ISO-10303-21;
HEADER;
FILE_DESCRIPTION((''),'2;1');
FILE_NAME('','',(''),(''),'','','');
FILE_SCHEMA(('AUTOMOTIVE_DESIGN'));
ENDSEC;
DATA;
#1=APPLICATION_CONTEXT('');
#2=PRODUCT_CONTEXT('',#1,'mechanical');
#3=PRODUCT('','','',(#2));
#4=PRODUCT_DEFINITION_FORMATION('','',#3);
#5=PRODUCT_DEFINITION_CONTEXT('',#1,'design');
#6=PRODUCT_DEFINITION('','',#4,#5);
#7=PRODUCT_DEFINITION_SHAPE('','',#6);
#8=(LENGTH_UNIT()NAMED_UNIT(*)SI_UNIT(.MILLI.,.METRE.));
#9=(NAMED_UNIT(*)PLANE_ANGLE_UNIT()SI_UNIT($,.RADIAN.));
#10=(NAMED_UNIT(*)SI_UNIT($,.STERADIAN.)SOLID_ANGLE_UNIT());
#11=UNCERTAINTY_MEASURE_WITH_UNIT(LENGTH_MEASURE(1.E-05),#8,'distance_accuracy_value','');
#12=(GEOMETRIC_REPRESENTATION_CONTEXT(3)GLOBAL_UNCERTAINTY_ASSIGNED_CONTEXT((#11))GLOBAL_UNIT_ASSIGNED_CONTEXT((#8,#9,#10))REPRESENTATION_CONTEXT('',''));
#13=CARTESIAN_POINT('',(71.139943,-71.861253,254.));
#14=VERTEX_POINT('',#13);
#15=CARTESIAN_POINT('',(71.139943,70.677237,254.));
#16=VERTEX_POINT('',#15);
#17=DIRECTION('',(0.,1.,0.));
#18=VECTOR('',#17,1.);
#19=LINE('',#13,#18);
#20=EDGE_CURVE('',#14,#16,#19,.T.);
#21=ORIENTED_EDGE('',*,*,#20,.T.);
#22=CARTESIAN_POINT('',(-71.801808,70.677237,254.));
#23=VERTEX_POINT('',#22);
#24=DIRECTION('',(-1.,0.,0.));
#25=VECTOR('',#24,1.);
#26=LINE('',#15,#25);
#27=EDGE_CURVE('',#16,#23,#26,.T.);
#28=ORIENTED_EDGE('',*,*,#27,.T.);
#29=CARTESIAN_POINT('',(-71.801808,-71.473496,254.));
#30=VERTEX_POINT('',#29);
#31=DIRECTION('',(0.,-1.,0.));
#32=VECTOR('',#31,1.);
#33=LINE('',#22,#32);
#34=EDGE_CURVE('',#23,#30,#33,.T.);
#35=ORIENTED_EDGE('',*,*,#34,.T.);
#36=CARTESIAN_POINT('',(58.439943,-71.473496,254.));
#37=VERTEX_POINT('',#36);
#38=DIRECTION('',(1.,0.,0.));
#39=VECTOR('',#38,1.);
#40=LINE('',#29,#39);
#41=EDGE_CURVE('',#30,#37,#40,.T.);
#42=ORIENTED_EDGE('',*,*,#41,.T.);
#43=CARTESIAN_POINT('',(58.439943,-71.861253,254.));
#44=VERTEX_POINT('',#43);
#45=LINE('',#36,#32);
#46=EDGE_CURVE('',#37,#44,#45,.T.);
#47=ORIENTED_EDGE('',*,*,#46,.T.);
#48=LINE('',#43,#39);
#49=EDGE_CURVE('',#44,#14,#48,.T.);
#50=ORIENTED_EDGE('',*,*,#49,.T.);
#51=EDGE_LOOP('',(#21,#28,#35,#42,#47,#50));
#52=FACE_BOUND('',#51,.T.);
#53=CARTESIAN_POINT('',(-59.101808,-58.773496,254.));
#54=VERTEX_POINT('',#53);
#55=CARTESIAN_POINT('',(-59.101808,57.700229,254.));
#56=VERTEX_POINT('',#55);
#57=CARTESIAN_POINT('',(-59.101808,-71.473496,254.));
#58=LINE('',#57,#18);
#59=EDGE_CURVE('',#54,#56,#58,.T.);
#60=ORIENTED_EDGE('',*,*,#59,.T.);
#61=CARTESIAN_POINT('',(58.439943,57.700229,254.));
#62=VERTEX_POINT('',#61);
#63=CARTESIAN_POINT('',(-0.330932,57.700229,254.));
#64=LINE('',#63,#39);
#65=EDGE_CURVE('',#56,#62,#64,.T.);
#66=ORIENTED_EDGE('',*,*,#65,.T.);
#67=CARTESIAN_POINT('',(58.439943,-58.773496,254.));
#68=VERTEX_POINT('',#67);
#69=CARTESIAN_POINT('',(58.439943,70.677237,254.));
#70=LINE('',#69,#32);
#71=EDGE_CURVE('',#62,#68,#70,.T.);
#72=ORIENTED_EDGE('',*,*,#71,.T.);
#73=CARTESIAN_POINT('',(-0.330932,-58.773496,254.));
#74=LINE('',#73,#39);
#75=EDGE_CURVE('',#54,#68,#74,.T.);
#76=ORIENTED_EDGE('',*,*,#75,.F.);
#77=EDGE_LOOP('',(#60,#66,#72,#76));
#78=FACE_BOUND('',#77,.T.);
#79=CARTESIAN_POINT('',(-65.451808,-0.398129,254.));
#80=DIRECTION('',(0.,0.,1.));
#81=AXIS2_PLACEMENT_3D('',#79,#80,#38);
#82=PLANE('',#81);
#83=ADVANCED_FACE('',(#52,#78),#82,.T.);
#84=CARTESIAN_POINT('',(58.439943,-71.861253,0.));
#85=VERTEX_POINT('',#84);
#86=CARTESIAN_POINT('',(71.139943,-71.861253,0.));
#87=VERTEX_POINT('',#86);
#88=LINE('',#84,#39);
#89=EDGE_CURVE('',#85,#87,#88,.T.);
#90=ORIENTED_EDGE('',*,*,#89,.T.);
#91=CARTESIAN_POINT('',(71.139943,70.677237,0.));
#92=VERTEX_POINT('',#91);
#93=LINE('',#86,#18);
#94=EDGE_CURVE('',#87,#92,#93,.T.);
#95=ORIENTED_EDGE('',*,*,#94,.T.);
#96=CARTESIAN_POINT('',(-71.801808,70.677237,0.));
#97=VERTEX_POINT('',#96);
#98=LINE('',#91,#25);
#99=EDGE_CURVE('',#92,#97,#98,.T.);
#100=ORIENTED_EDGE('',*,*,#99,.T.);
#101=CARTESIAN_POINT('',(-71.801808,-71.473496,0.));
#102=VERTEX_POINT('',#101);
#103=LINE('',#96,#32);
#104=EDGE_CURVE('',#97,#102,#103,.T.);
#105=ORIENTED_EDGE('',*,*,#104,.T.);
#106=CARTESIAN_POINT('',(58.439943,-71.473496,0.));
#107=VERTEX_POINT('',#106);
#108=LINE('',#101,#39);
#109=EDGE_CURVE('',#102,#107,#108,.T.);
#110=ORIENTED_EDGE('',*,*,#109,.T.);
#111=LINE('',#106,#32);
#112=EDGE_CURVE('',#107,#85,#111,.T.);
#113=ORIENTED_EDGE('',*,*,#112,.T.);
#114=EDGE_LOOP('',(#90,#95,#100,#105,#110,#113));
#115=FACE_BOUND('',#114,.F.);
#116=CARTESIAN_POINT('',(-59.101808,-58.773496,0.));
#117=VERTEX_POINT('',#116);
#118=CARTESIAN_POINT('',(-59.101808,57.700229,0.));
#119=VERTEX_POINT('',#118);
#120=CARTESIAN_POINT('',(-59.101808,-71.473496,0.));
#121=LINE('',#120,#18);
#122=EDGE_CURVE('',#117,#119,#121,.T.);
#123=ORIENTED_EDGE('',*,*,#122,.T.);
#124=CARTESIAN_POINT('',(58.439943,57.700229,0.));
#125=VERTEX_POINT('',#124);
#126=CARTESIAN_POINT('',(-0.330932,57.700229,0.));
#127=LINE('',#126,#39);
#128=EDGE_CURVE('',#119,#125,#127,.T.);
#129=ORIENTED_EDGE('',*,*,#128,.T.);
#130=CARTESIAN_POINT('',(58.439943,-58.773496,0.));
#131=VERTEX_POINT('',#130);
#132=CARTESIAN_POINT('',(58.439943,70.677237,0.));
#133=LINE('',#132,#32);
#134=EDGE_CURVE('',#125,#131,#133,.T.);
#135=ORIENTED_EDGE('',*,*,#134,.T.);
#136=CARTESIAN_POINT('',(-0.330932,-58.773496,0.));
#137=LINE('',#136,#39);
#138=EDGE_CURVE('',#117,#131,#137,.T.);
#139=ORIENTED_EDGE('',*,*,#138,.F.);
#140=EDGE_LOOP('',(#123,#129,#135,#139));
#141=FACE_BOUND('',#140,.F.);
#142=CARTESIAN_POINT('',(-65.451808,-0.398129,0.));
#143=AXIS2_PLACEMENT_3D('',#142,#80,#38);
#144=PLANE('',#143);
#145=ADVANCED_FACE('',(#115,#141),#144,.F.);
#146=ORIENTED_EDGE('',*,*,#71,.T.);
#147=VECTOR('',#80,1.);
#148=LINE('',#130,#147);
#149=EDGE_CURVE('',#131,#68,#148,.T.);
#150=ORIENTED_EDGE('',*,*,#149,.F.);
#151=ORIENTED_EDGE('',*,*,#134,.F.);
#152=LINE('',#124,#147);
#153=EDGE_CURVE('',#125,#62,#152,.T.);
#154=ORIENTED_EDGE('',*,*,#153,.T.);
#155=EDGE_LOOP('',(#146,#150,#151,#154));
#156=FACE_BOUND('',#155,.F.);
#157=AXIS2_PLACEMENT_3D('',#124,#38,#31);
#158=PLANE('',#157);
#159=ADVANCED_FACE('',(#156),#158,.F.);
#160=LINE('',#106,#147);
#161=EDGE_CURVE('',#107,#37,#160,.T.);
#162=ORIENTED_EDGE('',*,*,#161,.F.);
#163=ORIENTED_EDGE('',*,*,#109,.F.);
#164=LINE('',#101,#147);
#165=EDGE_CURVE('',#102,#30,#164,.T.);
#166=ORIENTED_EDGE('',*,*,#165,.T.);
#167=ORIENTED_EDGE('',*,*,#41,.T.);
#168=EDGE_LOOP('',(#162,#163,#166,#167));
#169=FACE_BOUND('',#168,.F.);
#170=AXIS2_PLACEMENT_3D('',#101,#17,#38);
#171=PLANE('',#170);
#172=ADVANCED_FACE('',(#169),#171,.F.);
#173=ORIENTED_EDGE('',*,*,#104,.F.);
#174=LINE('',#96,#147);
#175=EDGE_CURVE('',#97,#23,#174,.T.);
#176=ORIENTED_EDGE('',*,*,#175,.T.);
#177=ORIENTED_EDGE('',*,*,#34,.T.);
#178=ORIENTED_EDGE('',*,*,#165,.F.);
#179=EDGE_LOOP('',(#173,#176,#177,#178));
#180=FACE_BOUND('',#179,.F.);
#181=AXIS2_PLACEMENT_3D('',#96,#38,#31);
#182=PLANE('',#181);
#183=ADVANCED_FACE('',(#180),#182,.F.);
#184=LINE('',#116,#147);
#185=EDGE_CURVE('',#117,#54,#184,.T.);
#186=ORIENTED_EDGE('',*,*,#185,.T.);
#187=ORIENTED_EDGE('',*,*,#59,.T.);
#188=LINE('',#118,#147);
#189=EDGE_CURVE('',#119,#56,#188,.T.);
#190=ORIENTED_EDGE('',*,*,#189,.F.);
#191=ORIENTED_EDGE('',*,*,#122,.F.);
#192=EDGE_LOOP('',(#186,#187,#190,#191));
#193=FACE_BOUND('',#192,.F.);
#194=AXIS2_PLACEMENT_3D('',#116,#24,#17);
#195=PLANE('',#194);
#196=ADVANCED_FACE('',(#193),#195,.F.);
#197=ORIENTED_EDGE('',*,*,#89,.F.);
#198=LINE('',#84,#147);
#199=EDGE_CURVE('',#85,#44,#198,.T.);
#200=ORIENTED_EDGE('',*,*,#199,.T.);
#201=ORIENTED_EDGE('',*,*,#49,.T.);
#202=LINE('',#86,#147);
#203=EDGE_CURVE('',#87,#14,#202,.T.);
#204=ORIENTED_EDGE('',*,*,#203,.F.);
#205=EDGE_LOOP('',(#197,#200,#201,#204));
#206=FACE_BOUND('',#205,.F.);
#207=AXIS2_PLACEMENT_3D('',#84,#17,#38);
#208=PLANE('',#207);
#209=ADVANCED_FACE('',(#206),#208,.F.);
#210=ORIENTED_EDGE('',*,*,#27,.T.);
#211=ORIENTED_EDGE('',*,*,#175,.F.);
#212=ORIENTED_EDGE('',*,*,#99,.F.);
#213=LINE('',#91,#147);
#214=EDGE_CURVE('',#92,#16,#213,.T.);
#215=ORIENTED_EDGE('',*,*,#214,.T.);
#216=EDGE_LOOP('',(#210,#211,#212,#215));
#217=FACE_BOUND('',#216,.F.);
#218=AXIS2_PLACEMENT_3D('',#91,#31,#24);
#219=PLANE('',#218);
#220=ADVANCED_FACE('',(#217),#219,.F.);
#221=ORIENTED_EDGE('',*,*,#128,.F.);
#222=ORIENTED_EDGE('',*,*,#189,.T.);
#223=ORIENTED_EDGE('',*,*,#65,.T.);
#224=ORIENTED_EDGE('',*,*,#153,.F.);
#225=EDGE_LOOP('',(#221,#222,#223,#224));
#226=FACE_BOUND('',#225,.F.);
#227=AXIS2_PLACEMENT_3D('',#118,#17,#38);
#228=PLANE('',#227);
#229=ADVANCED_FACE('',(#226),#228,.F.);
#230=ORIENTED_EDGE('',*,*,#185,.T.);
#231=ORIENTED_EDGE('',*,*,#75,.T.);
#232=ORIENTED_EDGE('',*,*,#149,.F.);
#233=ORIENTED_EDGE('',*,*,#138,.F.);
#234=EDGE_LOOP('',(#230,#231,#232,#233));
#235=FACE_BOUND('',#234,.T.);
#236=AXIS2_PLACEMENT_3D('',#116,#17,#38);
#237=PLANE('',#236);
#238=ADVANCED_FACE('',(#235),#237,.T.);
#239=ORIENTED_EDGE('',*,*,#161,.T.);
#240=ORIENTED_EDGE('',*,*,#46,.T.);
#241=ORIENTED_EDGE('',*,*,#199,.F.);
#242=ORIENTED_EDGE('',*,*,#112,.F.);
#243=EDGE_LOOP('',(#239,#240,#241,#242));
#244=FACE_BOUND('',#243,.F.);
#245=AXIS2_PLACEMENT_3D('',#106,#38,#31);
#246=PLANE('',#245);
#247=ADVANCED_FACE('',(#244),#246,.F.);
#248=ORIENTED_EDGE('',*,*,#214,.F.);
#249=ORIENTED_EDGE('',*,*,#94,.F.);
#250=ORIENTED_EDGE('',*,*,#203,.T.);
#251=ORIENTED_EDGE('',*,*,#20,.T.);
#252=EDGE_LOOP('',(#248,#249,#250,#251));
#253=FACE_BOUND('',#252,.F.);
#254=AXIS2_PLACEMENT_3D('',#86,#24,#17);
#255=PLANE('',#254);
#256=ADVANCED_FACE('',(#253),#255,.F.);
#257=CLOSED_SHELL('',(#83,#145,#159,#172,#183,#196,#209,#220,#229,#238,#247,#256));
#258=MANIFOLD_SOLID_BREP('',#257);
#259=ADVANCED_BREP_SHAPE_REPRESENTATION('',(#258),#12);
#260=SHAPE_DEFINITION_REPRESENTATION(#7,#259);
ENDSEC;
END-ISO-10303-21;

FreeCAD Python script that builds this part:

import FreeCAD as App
import Part
import Sketcher
Q = App.Units.Quantity


def add_polygon(sketch, points):
    """Adds a closed chain of lines whose ends are joined by coincident constraints."""
    first, n = sketch.GeometryCount, len(points)
    for a, b in zip(points, points[1:] + points[:1]):
        sketch.addGeometry(Part.LineSegment(App.Vector(*a, 0), App.Vector(*b, 0)), False)
    for i in range(n):
        sketch.addConstraint(Sketcher.Constraint("Coincident", first + i, 2, first + (i + 1) % n, 1))

doc = App.newDocument("Part")
body = doc.addObject("PartDesign::Body", "Body")

# Sketch on XY plane
sketch1 = body.newObject("Sketcher::SketchObject", "Sketch")
sketch1.AttachmentSupport = (doc.getObject("XY_Plane"), [""])
sketch1.MapMode = "FlatFace"
add_polygon(sketch1, [(-71.8, 70.68), (-71.8, -71.47), (58.44, -71.47), (58.44, -71.86), (71.14, -71.86), (71.14, 70.68)])  # lines 0-5
add_polygon(sketch1, [(58.44, 57.7), (58.44, -58.77), (-59.1, -58.77), (-59.1, 57.7)])  # lines 6-9
sketch1.addConstraint(Sketcher.Constraint("Vertical", 0))
sketch1.addConstraint(Sketcher.Constraint("Horizontal", 1))
sketch1.addConstraint(Sketcher.Constraint("Vertical", 2))
sketch1.addConstraint(Sketcher.Constraint("Horizontal", 3))
sketch1.addConstraint(Sketcher.Constraint("Vertical", 4))
sketch1.addConstraint(Sketcher.Constraint("Horizontal", 5))
sketch1.addConstraint(Sketcher.Constraint("Vertical", 6))
sketch1.addConstraint(Sketcher.Constraint("Horizontal", 7))
sketch1.addConstraint(Sketcher.Constraint("Vertical", 8))
sketch1.addConstraint(Sketcher.Constraint("Horizontal", 9))
sketch1.addConstraint(Sketcher.Constraint("Vertical", 2, 2, 6, 2))
sketch1.addConstraint(Sketcher.Constraint("DistanceX", 3, 1, 3, 2, Q("0.5 in")))
sketch1.addConstraint(Sketcher.Constraint("DistanceY", 1, 2, 6, 2, Q("0.5 in")))
sketch1.addConstraint(Sketcher.Constraint("DistanceX", 0, 2, 7, 2, Q("0.5 in")))
sketch1.addConstraint(Sketcher.Constraint("DistanceX", 1, 1, 1, 2, 130.241752))
sketch1.addConstraint(Sketcher.Constraint("DistanceY", 4, 1, 4, 2, 142.53849))
sketch1.addConstraint(Sketcher.Constraint("DistanceY", 0, 2, 0, 1, 142.150732))
sketch1.addConstraint(Sketcher.Constraint("DistanceY", 6, 2, 6, 1, 116.473725))
sketch1.addConstraint(Sketcher.Constraint("DistanceX", 0, 2, -1, 1, 71.801808))
sketch1.addConstraint(Sketcher.Constraint("DistanceY", -1, 1, 8, 2, 57.700229))
pad1 = body.newObject("PartDesign::Pad", "Pad")
pad1.Profile = sketch1
pad1.Length = Q("10 in")

doc.recompute()
